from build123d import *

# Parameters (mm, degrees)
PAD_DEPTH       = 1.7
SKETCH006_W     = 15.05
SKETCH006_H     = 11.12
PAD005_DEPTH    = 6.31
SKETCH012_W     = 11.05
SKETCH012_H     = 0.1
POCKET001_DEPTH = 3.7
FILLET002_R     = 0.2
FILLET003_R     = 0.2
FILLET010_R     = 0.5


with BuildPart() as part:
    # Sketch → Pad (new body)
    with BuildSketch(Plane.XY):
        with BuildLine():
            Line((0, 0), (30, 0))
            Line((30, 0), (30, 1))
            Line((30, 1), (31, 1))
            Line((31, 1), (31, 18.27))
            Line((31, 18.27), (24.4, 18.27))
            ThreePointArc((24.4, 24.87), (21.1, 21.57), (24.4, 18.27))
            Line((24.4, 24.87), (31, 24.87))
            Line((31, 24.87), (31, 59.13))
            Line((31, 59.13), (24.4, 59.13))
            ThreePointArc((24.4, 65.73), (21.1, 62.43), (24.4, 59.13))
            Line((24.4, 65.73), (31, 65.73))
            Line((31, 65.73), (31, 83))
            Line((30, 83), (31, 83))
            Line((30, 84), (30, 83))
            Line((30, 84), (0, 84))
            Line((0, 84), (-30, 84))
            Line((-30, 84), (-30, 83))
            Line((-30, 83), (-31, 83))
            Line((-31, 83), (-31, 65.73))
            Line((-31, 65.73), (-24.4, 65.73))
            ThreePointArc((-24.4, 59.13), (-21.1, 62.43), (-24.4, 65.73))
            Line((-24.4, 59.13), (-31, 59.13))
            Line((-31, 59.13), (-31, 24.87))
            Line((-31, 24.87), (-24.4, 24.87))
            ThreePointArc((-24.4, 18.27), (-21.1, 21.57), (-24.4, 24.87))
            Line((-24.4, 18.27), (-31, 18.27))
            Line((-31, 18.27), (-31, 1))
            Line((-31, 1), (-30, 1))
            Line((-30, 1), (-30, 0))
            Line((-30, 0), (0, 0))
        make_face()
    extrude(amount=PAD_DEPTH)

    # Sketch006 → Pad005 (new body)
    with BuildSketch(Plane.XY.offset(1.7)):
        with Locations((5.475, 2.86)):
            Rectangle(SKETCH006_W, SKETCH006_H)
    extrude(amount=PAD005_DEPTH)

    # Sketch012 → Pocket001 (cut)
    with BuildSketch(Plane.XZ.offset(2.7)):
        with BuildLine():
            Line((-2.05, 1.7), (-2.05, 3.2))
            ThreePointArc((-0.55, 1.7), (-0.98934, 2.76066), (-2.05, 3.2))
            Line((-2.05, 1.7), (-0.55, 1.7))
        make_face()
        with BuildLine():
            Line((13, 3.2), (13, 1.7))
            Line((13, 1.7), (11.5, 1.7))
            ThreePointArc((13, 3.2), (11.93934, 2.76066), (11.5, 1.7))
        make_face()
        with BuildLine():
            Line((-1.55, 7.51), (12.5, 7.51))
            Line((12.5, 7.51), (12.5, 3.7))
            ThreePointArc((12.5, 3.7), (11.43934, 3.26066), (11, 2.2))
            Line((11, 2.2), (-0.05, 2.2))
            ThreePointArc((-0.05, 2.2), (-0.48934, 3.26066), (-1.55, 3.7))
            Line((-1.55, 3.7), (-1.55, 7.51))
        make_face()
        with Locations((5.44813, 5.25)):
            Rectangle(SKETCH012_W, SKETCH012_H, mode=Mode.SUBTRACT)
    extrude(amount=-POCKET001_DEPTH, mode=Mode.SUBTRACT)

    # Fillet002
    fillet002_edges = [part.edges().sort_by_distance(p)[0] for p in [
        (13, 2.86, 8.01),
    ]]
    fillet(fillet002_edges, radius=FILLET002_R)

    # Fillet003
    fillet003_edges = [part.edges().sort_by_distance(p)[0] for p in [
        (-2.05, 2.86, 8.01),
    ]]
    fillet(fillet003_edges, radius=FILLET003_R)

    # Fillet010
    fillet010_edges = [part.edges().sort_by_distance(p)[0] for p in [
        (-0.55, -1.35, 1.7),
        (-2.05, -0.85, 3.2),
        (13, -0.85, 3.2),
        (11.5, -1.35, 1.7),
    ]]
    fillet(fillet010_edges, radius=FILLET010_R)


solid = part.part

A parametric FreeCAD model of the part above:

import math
import FreeCAD as App
import Part
import Sketcher

V = App.Vector


def edges_at(feature, points):
    """Names of the edges that pass closest to the given points."""
    edges = feature.Shape.Edges
    near = lambda p: min(range(len(edges)), key=lambda i: edges[i].distToShape(Part.Vertex(*p))[0])
    return sorted({f"Edge{near(p) + 1}" for p in points})


def add_polygon(sketch, points):
    """Adds a closed chain of lines whose ends are joined by coincident constraints."""
    first, n = sketch.GeometryCount, len(points)
    for a, b in zip(points, points[1:] + points[:1]):
        sketch.addGeometry(Part.LineSegment(App.Vector(*a, 0), App.Vector(*b, 0)), False)
    for i in range(n):
        sketch.addConstraint(Sketcher.Constraint("Coincident", first + i, 2, first + (i + 1) % n, 1))

doc = App.newDocument("Part")
body = doc.addObject("PartDesign::Body", "Body")

sketch1 = body.newObject("Sketcher::SketchObject", "Sketch")
sketch1.AttachmentSupport = (doc.getObject("XY_Plane"), [""])
sketch1.MapMode = "FlatFace"
sketch1.addGeometry([
    Part.LineSegment(V(30, 0, 0), V(30, 1, 0)),
    Part.LineSegment(V(30, 1, 0), V(31, 1, 0)),
    Part.LineSegment(V(31, 1, 0), V(31, 18.27, 0)),
    Part.LineSegment(V(31, 18.27, 0), V(24.4, 18.27, 0)),
    Part.ArcOfCircle(Part.Circle(V(24.4, 21.57, 0), V(0, 0, 1), 3.3), math.radians(90), math.radians(270)),
    Part.LineSegment(V(24.4, 24.87, 0), V(31, 24.87, 0)),
    Part.LineSegment(V(31, 24.87, 0), V(31, 59.13, 0)),
    Part.LineSegment(V(31, 59.13, 0), V(24.4, 59.13, 0)),
    Part.ArcOfCircle(Part.Circle(V(24.4, 62.43, 0), V(0, 0, 1), 3.3), math.radians(90), math.radians(270)),
    Part.LineSegment(V(24.4, 65.73, 0), V(31, 65.73, 0)),
    Part.LineSegment(V(31, 65.73, 0), V(31, 83, 0)),
    Part.LineSegment(V(31, 83, 0), V(30, 83, 0)),
    Part.LineSegment(V(30, 83, 0), V(30, 84, 0)),
    Part.LineSegment(V(30, 84, 0), V(-30, 84, 0)),
    Part.LineSegment(V(-30, 84, 0), V(-30, 83, 0)),
    Part.LineSegment(V(-30, 83, 0), V(-31, 83, 0)),
    Part.LineSegment(V(-31, 83, 0), V(-31, 65.73, 0)),
    Part.LineSegment(V(-31, 65.73, 0), V(-24.4, 65.73, 0)),
    Part.ArcOfCircle(Part.Circle(V(-24.4, 62.43, 0), V(0, 0, 1), 3.3), math.radians(-90), math.radians(90)),
    Part.LineSegment(V(-24.4, 59.13, 0), V(-31, 59.13, 0)),
    Part.LineSegment(V(-31, 59.13, 0), V(-31, 24.87, 0)),
    Part.LineSegment(V(-31, 24.87, 0), V(-24.4, 24.87, 0)),
    Part.ArcOfCircle(Part.Circle(V(-24.4, 21.57, 0), V(0, 0, 1), 3.3), math.radians(-90), math.radians(90)),
    Part.LineSegment(V(-24.4, 18.27, 0), V(-31, 18.27, 0)),
    Part.LineSegment(V(-31, 18.27, 0), V(-31, 1, 0)),
    Part.LineSegment(V(-31, 1, 0), V(-30, 1, 0)),
    Part.LineSegment(V(-30, 1, 0), V(-30, 0, 0)),
    Part.LineSegment(V(-30, 0, 0), V(30, 0, 0)),
], False)
sketch1.addConstraint([
    Sketcher.Constraint("Coincident", 0, 2, 1, 1),
    Sketcher.Constraint("Coincident", 1, 2, 2, 1),
    Sketcher.Constraint("Coincident", 2, 2, 3, 1),
    Sketcher.Constraint("Tangent", 3, 2, 4, 2),
    Sketcher.Constraint("Tangent", 4, 1, 5, 1),
    Sketcher.Constraint("Coincident", 5, 2, 6, 1),
    Sketcher.Constraint("Coincident", 6, 2, 7, 1),
    Sketcher.Constraint("Tangent", 7, 2, 8, 2),
    Sketcher.Constraint("Tangent", 8, 1, 9, 1),
    Sketcher.Constraint("Coincident", 9, 2, 10, 1),
    Sketcher.Constraint("Coincident", 10, 2, 11, 1),
    Sketcher.Constraint("Coincident", 11, 2, 12, 1),
    Sketcher.Constraint("Coincident", 12, 2, 13, 1),
    Sketcher.Constraint("Coincident", 13, 2, 14, 1),
    Sketcher.Constraint("Coincident", 14, 2, 15, 1),
    Sketcher.Constraint("Coincident", 15, 2, 16, 1),
    Sketcher.Constraint("Coincident", 16, 2, 17, 1),
    Sketcher.Constraint("Tangent", 17, 2, 18, 2),
    Sketcher.Constraint("Tangent", 18, 1, 19, 1),
    Sketcher.Constraint("Coincident", 19, 2, 20, 1),
    Sketcher.Constraint("Coincident", 20, 2, 21, 1),
    Sketcher.Constraint("Tangent", 21, 2, 22, 2),
    Sketcher.Constraint("Tangent", 22, 1, 23, 1),
    Sketcher.Constraint("Coincident", 23, 2, 24, 1),
    Sketcher.Constraint("Coincident", 24, 2, 25, 1),
    Sketcher.Constraint("Coincident", 25, 2, 26, 1),
    Sketcher.Constraint("Coincident", 26, 2, 27, 1),
    Sketcher.Constraint("Coincident", 27, 2, 0, 1),
    Sketcher.Constraint("Vertical", 0),
    Sketcher.Constraint("Horizontal", 1),
    Sketcher.Constraint("Vertical", 2),
    Sketcher.Constraint("Horizontal", 3),
    Sketcher.Constraint("Horizontal", 5),
    Sketcher.Constraint("Vertical", 6),
    Sketcher.Constraint("Horizontal", 7),
    Sketcher.Constraint("Horizontal", 9),
    Sketcher.Constraint("Vertical", 10),
    Sketcher.Constraint("Horizontal", 11),
    Sketcher.Constraint("Vertical", 12),
    Sketcher.Constraint("Horizontal", 13),
    Sketcher.Constraint("Vertical", 14),
    Sketcher.Constraint("Horizontal", 15),
    Sketcher.Constraint("Vertical", 16),
    Sketcher.Constraint("Horizontal", 17),
    Sketcher.Constraint("Horizontal", 19),
    Sketcher.Constraint("Vertical", 20),
    Sketcher.Constraint("Horizontal", 21),
    Sketcher.Constraint("Horizontal", 23),
    Sketcher.Constraint("Vertical", 24),
    Sketcher.Constraint("Horizontal", 25),
    Sketcher.Constraint("Vertical", 26),
    Sketcher.Constraint("Horizontal", 27),
    Sketcher.Constraint("Equal", 4, 8),
    Sketcher.Constraint("Equal", 8, 18),
    Sketcher.Constraint("Equal", 18, 22),
    Sketcher.Constraint("Symmetric", 26, 2, 27, 2, -1, 1),
    Sketcher.Constraint("Symmetric", 8, 3, 18, 3, -2),
    Sketcher.Constraint("Symmetric", 4, 3, 22, 3, -2),
    Sketcher.Constraint("Symmetric", 11, 2, 14, 2, -2),
    Sketcher.Constraint("Symmetric", 1, 2, 24, 2, -2),
    Sketcher.Constraint("Vertical", 4, 3, 8, 3),
    Sketcher.Constraint("Vertical", 2, 2, 5, 2),
    Sketcher.Constraint("Vertical", 6, 2, 9, 2),
    Sketcher.Constraint("Vertical", 0, 2, 11, 2),
    Sketcher.Constraint("Vertical", 16, 2, 19, 2),
    Sketcher.Constraint("Vertical", 20, 2, 23, 2),
    Sketcher.Constraint("Equal", 25, 0),
    Sketcher.Constraint("Equal", 2, 10),
    Sketcher.Constraint("Equal", 0, 12),
    Sketcher.Constraint("Radius", 4, 3.3),
    Sketcher.Constraint("DistanceX", 1, 1, 1, 2, 1.0),
    Sketcher.Constraint("DistanceX", 13, 2, 13, 1, 60.0),
    Sketcher.Constraint("DistanceX", 3, 2, 3, 1, 6.6),
    Sketcher.Constraint("DistanceY", -1, 1, 10, 2, 83.0),
    Sketcher.Constraint("DistanceY", 2, 1, 2, 2, 17.27),
])
pad1 = body.newObject("PartDesign::Pad", "Pad")
pad1.Profile = sketch1
pad1.Length = 1.7

sketch2 = body.newObject("Sketcher::SketchObject", "Sketch001")
sketch2.AttachmentSupport = (doc.getObject("XY_Plane"), [""])
sketch2.MapMode = "FlatFace"
sketch2.AttachmentOffset = App.Placement(V(0, 0, 1.7), App.Rotation())
add_polygon(sketch2, [(-2.05, 8.42), (-2.05, -2.7), (13, -2.7), (13, 8.42)])
sketch2.addConstraint([
    Sketcher.Constraint("Vertical", 0),
    Sketcher.Constraint("Horizontal", 1),
    Sketcher.Constraint("Vertical", 2),
    Sketcher.Constraint("Horizontal", 3),
    Sketcher.Constraint("DistanceX", -1, 1, 1, 2, 13.0),
    Sketcher.Constraint("DistanceX", 1, 1, 1, 2, 15.05),
    Sketcher.Constraint("DistanceY", 0, 2, 0, 1, 11.12),
    Sketcher.Constraint("DistanceY", 0, 2, -1, 1, 2.7),
])
pad2 = body.newObject("PartDesign::Pad", "Pad001")
pad2.Profile = sketch2
pad2.Length = 6.31

sketch3 = body.newObject("Sketcher::SketchObject", "Sketch002")
sketch3.AttachmentSupport = (doc.getObject("XZ_Plane"), [""])
sketch3.MapMode = "FlatFace"
sketch3.AttachmentOffset = App.Placement(V(0, 0, 2.7), App.Rotation())
sketch3.addGeometry(Part.LineSegment(V(-2.05, 3.2, 0), V(-2.05, 1.7, 0)), False)
sketch3.addGeometry(Part.LineSegment(V(-2.05, 1.7, 0), V(-0.55, 1.7, 0)), False)
sketch3.addGeometry(Part.ArcOfCircle(Part.Circle(V(-2.050001, 1.699999, 0), V(0, 0, 1), 1.500001), math.radians(0.000022), math.radians(89.999978)), False)
sketch3.addGeometry(Part.LineSegment(V(13, 1.7, 0), V(13, 3.2, 0)), False)
sketch3.addGeometry(Part.ArcOfCircle(Part.Circle(V(13.000001, 1.699999, 0), V(0, 0, 1), 1.500001), math.radians(90.000022), math.radians(179.999978)), False)
sketch3.addGeometry(Part.LineSegment(V(11.5, 1.7, 0), V(13, 1.7, 0)), False)
sketch3.addGeometry(Part.LineSegment(V(12.5, 7.51, 0), V(-1.55, 7.51, 0)), False)
sketch3.addGeometry(Part.LineSegment(V(-1.55, 7.51, 0), V(-1.55, 3.7, 0)), False)
sketch3.addGeometry(Part.ArcOfCircle(Part.Circle(V(-1.550001, 2.199999, 0), V(0, 0, 1), 1.500001), math.radians(0.000022), math.radians(89.999978)), False)
sketch3.addGeometry(Part.LineSegment(V(-0.05, 2.2, 0), V(11, 2.2, 0)), False)
sketch3.addGeometry(Part.ArcOfCircle(Part.Circle(V(12.500001, 2.199999, 0), V(0, 0, 1), 1.500001), math.radians(90.000022), math.radians(179.999978)), False)
sketch3.addGeometry(Part.LineSegment(V(12.5, 3.7, 0), V(12.5, 7.51, 0)), False)
add_polygon(sketch3, [(-0.07687, 5.2), (-0.07687, 5.3), (10.97313, 5.3), (10.97313, 5.2)])
sketch3.addConstraint([
    Sketcher.Constraint("Coincident", 0, 2, 1, 1),
    Sketcher.Constraint("Coincident", 1, 2, 2, 1),
    Sketcher.Constraint("Coincident", 2, 2, 0, 1),
    Sketcher.Constraint("Coincident", 3, 2, 4, 1),
    Sketcher.Constraint("Coincident", 4, 2, 5, 1),
    Sketcher.Constraint("Coincident", 5, 2, 3, 1),
    Sketcher.Constraint("Coincident", 6, 2, 7, 1),
    Sketcher.Constraint("Coincident", 7, 2, 8, 2),
    Sketcher.Constraint("Coincident", 8, 1, 9, 1),
    Sketcher.Constraint("Coincident", 9, 2, 10, 2),
    Sketcher.Constraint("Coincident", 10, 1, 11, 1),
    Sketcher.Constraint("Coincident", 11, 2, 6, 1),
    Sketcher.Constraint("Vertical", 0),
    Sketcher.Constraint("Horizontal", 1),
    Sketcher.Constraint("Vertical", 3),
    Sketcher.Constraint("Horizontal", 5),
    Sketcher.Constraint("Horizontal", 6),
    Sketcher.Constraint("Vertical", 7),
    Sketcher.Constraint("Horizontal", 9),
    Sketcher.Constraint("Vertical", 11),
    Sketcher.Constraint("Vertical", 12),
    Sketcher.Constraint("Horizontal", 13),
    Sketcher.Constraint("Vertical", 14),
    Sketcher.Constraint("Horizontal", 15),
    Sketcher.Constraint("Coincident", 0, 2, 2, 3),
    Sketcher.Constraint("Coincident", 5, 2, 4, 3),
    Sketcher.Constraint("Equal", 2, 4),
    Sketcher.Constraint("Equal", 4, 8),
    Sketcher.Constraint("Equal", 8, 10),
    Sketcher.Constraint("Horizontal", 2, 3, 4, 3),
    Sketcher.Constraint("Horizontal", 8, 3, 10, 3),
    Sketcher.Constraint("Horizontal", 10, 3, 8, 1),
    Sketcher.Constraint("Vertical", 8, 3, 6, 2),
    Sketcher.Constraint("Equal", 9, 13),
    Sketcher.Constraint("Radius", 2, 1.500001),
    Sketcher.Constraint("DistanceY", 12, 1, 12, 2, 0.1),
    Sketcher.Constraint("DistanceX", -1, 1, 4, 3, 13.000001),
    Sketcher.Constraint("DistanceX", -1, 1, 9, 2, 11.0),
    Sketcher.Constraint("DistanceX", 8, 3, 1, 2, 1.000001),
    Sketcher.Constraint("DistanceY", 8, 3, 2, 2, 1.000001),
    Sketcher.Constraint("DistanceY", 3, 2, 14, 2, 2.0),
    Sketcher.Constraint("DistanceX", 6, 2, 6, 1, 14.05),
    Sketcher.Constraint("DistanceX", 9, 1, 9, 2, 11.05),
    Sketcher.Constraint("DistanceY", 7, 2, 7, 1, 3.81),
    Sketcher.Constraint("DistanceY", -1, 1, 2, 3, 1.699999),
    Sketcher.Constraint("DistanceX", 12, 2, -1, 1, 0.07687),
])
pocket1 = body.newObject("PartDesign::Pocket", "Pocket")
pocket1.Profile = sketch3
pocket1.Length = 3.7
doc.recompute()

fillet = body.newObject("PartDesign::Fillet", "Fillet")
fillet.Base = (pocket1, edges_at(pocket1, [(13, 2.86, 8.01)]))
fillet.Radius = 0.2
doc.recompute()

fillet2 = body.newObject("PartDesign::Fillet", "Fillet001")
fillet2.Base = (fillet, edges_at(fillet, [(-2.05, 2.86, 8.01)]))
fillet2.Radius = 0.2
doc.recompute()

fillet3 = body.newObject("PartDesign::Fillet", "Fillet002")
fillet3.Base = (fillet2, edges_at(fillet2, [
    (-0.55, -1.35, 1.7),
    (-2.05, -0.85, 3.2),
    (13, -0.85, 3.2),
    (11.5, -1.35, 1.7),
]))
fillet3.Radius = 0.5

doc.recompute()
